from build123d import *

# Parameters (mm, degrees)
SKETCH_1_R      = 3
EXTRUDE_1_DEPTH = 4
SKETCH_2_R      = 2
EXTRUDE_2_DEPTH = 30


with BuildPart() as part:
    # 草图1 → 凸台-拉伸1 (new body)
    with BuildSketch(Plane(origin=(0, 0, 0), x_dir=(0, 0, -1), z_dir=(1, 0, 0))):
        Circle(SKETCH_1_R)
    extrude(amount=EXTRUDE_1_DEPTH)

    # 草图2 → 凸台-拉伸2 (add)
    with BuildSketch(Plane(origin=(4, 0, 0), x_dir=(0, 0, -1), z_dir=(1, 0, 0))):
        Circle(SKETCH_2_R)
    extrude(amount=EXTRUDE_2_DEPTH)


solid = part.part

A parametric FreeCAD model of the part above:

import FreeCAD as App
import Part
import Sketcher

V = App.Vector

doc = App.newDocument("Part")
body = doc.addObject("PartDesign::Body", "Body")

sketch1 = body.newObject("Sketcher::SketchObject", "Sketch")
sketch1.AttachmentSupport = (doc.getObject("YZ_Plane"), [""])
sketch1.MapMode = "FlatFace"
sketch1.addGeometry(Part.Circle(V(0, 0, 0), V(0, 0, 1), 3), False)
sketch1.addConstraint([
    Sketcher.Constraint("Coincident", 0, 3, -1, 1),
    Sketcher.Constraint("Diameter", 0, 6.0),
])
pad1 = body.newObject("PartDesign::Pad", "Pad")
pad1.Profile = sketch1
pad1.Length = 4

sketch2 = body.newObject("Sketcher::SketchObject", "Sketch001")
sketch2.AttachmentSupport = (doc.getObject("YZ_Plane"), [""])
sketch2.MapMode = "FlatFace"
sketch2.AttachmentOffset = App.Placement(V(0, 0, 4), App.Rotation())
sketch2.addGeometry(Part.Circle(V(0, 0, 0), V(0, 0, 1), 2), False)
sketch2.addConstraint([
    Sketcher.Constraint("Coincident", 0, 3, -1, 1),
    Sketcher.Constraint("Diameter", 0, 4.0),
])
pad2 = body.newObject("PartDesign::Pad", "Pad001")
pad2.Profile = sketch2
pad2.Length = 30

doc.recompute()
